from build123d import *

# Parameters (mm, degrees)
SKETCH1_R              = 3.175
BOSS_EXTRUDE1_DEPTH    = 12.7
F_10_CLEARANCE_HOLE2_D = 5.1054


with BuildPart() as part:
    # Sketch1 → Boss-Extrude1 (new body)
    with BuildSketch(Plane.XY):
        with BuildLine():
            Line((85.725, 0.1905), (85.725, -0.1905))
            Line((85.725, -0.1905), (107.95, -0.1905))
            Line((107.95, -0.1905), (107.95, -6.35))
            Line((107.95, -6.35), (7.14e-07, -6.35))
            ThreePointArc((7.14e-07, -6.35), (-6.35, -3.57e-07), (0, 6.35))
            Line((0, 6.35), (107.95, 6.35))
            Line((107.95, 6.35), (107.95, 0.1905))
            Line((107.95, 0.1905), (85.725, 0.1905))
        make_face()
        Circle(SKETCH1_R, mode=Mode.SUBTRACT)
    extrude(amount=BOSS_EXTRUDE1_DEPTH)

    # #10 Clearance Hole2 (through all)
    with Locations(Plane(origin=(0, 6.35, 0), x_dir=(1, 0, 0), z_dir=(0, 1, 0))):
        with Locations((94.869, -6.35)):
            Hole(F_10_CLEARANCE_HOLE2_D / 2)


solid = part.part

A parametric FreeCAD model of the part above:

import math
import FreeCAD as App
import Part
import Sketcher
from FreeCAD import Vector
Q = App.Units.Quantity

doc = App.newDocument("Part")
params = doc.addObject("Spreadsheet::Sheet", "Params")
for row, (alias, value) in enumerate([
    ("sketch1_diameter", "0.25 in"),
    ("sketch1_radius", "0.25 in"),
    ("sketch1_width", "4.25 in"),
    ("sketch1_width2", "0.875 in"),
    ("sketch1_height", "0.015 in"),
    ("pad1_length", "0.5 in"),
    ("sketch2_diameter", "0.201 in"),
    ("hole_diameter", "0.201 in"),
], start=1):
    params.set(f"A{row}", alias)
    params.set(f"B{row}", "=" + value)
    params.setAlias(f"B{row}", alias)

body = doc.addObject("PartDesign::Body", "Body")

# Sketch on XY plane
sketch1 = body.newObject("Sketcher::SketchObject", "Sketch")
sketch1.AttachmentSupport = (doc.getObject("XY_Plane"), [""])
sketch1.MapMode = "FlatFace"
sketch1.addGeometry(Part.LineSegment(Vector(85.725, -0.1905, 0), Vector(85.725, 0.1905, 0)), False)
sketch1.addGeometry(Part.LineSegment(Vector(85.725, 0.1905, 0), Vector(107.95, 0.1905, 0)), False)
sketch1.addGeometry(Part.LineSegment(Vector(107.95, 0.1905, 0), Vector(107.95, 6.35, 0)), False)
sketch1.addGeometry(Part.LineSegment(Vector(107.95, 6.35, 0), Vector(0, 6.35, 0)), False)
sketch1.addGeometry(Part.ArcOfCircle(Part.Circle(Vector(0, 0, 0), Vector(0, 0, 1), 6.35), math.radians(90), math.radians(270.000006)), False)
sketch1.addGeometry(Part.LineSegment(Vector(0.000001, -6.35, 0), Vector(107.95, -6.35, 0)), False)
sketch1.addGeometry(Part.LineSegment(Vector(107.95, -6.35, 0), Vector(107.95, -0.1905, 0)), False)
sketch1.addGeometry(Part.LineSegment(Vector(107.95, -0.1905, 0), Vector(85.725, -0.1905, 0)), False)
sketch1.addGeometry(Part.Circle(Vector(0, 0, 0), Vector(0, 0, 1), 3.175), False)
sketch1.addConstraint(Sketcher.Constraint("Coincident", 0, 2, 1, 1))
sketch1.addConstraint(Sketcher.Constraint("Coincident", 1, 2, 2, 1))
sketch1.addConstraint(Sketcher.Constraint("Coincident", 2, 2, 3, 1))
sketch1.addConstraint(Sketcher.Constraint("Tangent", 3, 2, 4, 1))
sketch1.addConstraint(Sketcher.Constraint("Tangent", 4, 2, 5, 1))
sketch1.addConstraint(Sketcher.Constraint("Coincident", 5, 2, 6, 1))
sketch1.addConstraint(Sketcher.Constraint("Coincident", 6, 2, 7, 1))
sketch1.addConstraint(Sketcher.Constraint("Coincident", 7, 2, 0, 1))
sketch1.addConstraint(Sketcher.Constraint("Vertical", 0))
sketch1.addConstraint(Sketcher.Constraint("Horizontal", 1))
sketch1.addConstraint(Sketcher.Constraint("Vertical", 2))
sketch1.addConstraint(Sketcher.Constraint("Horizontal", 3))
sketch1.addConstraint(Sketcher.Constraint("Horizontal", 5))
sketch1.addConstraint(Sketcher.Constraint("Vertical", 6))
sketch1.addConstraint(Sketcher.Constraint("Horizontal", 7))
sketch1.addConstraint(Sketcher.Constraint("Coincident", 4, 3, -1, 1))
sketch1.addConstraint(Sketcher.Constraint("Coincident", 8, 3, -1, 1))
sketch1.addConstraint(Sketcher.Constraint("Symmetric", 1, 2, 6, 2, -1))
sketch1.addConstraint(Sketcher.Constraint("Diameter", 8, Q("0.25 in")))
sketch1.addConstraint(Sketcher.Constraint("Radius", 4, Q("0.25 in")))
sketch1.addConstraint(Sketcher.Constraint("DistanceX", 3, 2, 3, 1, Q("4.25 in")))
sketch1.addConstraint(Sketcher.Constraint("DistanceX", 1, 1, 1, 2, Q("0.875 in")))
sketch1.addConstraint(Sketcher.Constraint("DistanceY", 0, 1, 0, 2, Q("0.015 in")))
sketch1.setExpression("Constraints[18]", "Params.sketch1_diameter")
sketch1.setExpression("Constraints[19]", "Params.sketch1_radius")
sketch1.setExpression("Constraints[20]", "Params.sketch1_width")
sketch1.setExpression("Constraints[21]", "Params.sketch1_width2")
sketch1.setExpression("Constraints[22]", "Params.sketch1_height")
pad1 = body.newObject("PartDesign::Pad", "Pad")
pad1.Profile = sketch1
pad1.setExpression("Length", "Params.pad1_length")

# Sketch on XZ plane
sketch2 = body.newObject("Sketcher::SketchObject", "Sketch001")
sketch2.AttachmentSupport = (doc.getObject("XZ_Plane"), [""])
sketch2.MapMode = "FlatFace"
sketch2.AttachmentOffset = App.Placement(Vector(0, 0, -0.25 * 25.4), App.Rotation())
sketch2.addGeometry(Part.Circle(Vector(94.869, 6.35, 0), Vector(0, 0, 1), 2.5527), False)
sketch2.addConstraint(Sketcher.Constraint("Diameter", 0, Q("0.201 in")))
sketch2.addConstraint(Sketcher.Constraint("DistanceY", -1, 1, 0, 3, Q("0.25 in")))
sketch2.addConstraint(Sketcher.Constraint("DistanceX", -1, 1, 0, 3, Q("3.735 in")))
sketch2.setExpression("Constraints[0]", "Params.sketch2_diameter")
doc.recompute()
hole = body.newObject("PartDesign::Hole", "Hole")
hole.Profile = sketch2
hole.ThreadType = "None"
hole.setExpression("Diameter", "Params.hole_diameter")
hole.DepthType = "ThroughAll"
hole.Reversed = True

doc.recompute()
